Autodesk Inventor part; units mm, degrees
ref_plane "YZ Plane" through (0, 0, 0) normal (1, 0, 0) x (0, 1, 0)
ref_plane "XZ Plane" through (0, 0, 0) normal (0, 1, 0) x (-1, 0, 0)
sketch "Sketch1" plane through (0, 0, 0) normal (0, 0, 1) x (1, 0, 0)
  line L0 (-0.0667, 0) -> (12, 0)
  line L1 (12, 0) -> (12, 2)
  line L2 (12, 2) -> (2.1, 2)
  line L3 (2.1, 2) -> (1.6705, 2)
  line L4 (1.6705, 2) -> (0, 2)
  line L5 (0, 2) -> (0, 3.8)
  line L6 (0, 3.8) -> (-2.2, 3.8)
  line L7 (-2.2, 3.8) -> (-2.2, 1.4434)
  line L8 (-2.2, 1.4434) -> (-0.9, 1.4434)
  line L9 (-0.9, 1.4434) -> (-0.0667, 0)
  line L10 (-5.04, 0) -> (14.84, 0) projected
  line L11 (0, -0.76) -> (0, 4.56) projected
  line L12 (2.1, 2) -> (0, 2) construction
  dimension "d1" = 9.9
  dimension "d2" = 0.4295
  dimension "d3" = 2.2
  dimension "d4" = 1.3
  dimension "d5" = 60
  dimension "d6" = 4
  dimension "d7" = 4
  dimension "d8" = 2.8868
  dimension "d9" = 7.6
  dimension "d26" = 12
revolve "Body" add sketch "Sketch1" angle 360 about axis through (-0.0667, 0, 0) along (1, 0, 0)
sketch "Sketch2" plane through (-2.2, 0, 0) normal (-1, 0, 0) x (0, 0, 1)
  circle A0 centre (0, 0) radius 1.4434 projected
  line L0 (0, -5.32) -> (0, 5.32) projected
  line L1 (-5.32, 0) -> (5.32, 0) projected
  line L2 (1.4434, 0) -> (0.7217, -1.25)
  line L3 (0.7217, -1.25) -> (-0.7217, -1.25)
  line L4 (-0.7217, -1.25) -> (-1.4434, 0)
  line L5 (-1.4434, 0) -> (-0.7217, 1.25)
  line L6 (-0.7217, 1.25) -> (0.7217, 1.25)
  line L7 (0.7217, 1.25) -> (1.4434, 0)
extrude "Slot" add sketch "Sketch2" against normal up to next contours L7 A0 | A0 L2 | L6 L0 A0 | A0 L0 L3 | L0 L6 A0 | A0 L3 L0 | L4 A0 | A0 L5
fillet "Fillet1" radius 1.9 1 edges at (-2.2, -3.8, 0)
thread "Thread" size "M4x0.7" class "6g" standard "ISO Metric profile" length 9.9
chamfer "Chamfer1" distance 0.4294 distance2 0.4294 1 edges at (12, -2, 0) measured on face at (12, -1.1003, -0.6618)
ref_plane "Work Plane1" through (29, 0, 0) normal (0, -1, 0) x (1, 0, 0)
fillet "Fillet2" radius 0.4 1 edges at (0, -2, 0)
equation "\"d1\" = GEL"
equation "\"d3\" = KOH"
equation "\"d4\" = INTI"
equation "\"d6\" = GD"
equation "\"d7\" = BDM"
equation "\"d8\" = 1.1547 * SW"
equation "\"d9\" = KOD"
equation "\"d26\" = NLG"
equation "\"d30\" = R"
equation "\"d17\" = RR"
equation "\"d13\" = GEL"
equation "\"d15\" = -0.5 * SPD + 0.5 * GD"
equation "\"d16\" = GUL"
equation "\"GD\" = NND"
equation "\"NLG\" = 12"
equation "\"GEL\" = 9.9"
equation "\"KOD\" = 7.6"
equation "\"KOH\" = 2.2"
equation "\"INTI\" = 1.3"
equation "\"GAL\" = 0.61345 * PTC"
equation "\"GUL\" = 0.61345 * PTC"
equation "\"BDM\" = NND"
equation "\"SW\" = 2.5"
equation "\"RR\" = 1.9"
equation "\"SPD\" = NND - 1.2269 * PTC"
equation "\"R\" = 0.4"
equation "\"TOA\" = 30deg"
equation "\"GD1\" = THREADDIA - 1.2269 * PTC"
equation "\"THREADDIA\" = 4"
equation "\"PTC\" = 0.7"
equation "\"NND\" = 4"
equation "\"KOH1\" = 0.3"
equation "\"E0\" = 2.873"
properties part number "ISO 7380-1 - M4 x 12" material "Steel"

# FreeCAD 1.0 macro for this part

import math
import FreeCAD as App
import Part
import Sketcher

V = App.Vector
Q = App.Units.Quantity


def edges_at(feature, points):
    """Names of the edges that pass closest to the given points."""
    edges = feature.Shape.Edges
    near = lambda p: min(range(len(edges)), key=lambda i: edges[i].distToShape(Part.Vertex(*p))[0])
    return sorted({f"Edge{near(p) + 1}" for p in points})

doc = App.newDocument("Part")
body = doc.addObject("PartDesign::Body", "Body")

sketch1 = doc.addObject("Sketcher::SketchObject", "Sketch")
body.addObject(sketch1)
sketch1.AttachmentSupport = (doc.XY_Plane, [""])
sketch1.MapMode = "FlatFace"
sketch1.addGeometry(Part.LineSegment(V(-0.9, 1.4, 0), V(-0.1, 0, 0)), False)
sketch1.addGeometry(Part.LineSegment(V(-0.1, 0, 0), V(12, 0, 0)), False)
sketch1.addGeometry(Part.LineSegment(V(12, 0, 0), V(12, 2, 0)), False)
sketch1.addGeometry(Part.LineSegment(V(12, 2, 0), V(0, 2, 0)), False)
sketch1.addGeometry(Part.LineSegment(V(0, 2, 0), V(0, 3.8, 0)), False)
sketch1.addGeometry(Part.LineSegment(V(0, 3.8, 0), V(-2.2, 3.8, 0)), False)
sketch1.addGeometry(Part.LineSegment(V(-2.2, 3.8, 0), V(-2.2, 1.4, 0)), False)
sketch1.addGeometry(Part.LineSegment(V(-2.2, 1.4, 0), V(-0.9, 1.4, 0)), False)
sketch1.addConstraint(Sketcher.Constraint("Coincident", 0, 2, 1, 1))
sketch1.addConstraint(Sketcher.Constraint("Coincident", 1, 2, 2, 1))
sketch1.addConstraint(Sketcher.Constraint("Coincident", 2, 2, 3, 1))
sketch1.addConstraint(Sketcher.Constraint("Coincident", 3, 2, 4, 1))
sketch1.addConstraint(Sketcher.Constraint("Coincident", 4, 2, 5, 1))
sketch1.addConstraint(Sketcher.Constraint("Coincident", 5, 2, 6, 1))
sketch1.addConstraint(Sketcher.Constraint("Coincident", 6, 2, 7, 1))
sketch1.addConstraint(Sketcher.Constraint("Coincident", 7, 2, 0, 1))
sketch1.addConstraint(Sketcher.Constraint("Horizontal", 1))
sketch1.addConstraint(Sketcher.Constraint("Vertical", 2))
sketch1.addConstraint(Sketcher.Constraint("Horizontal", 3))
sketch1.addConstraint(Sketcher.Constraint("Vertical", 4))
sketch1.addConstraint(Sketcher.Constraint("Horizontal", 5))
sketch1.addConstraint(Sketcher.Constraint("Vertical", 6))
sketch1.addConstraint(Sketcher.Constraint("Horizontal", 7))
sketch1.addConstraint(Sketcher.Constraint("PointOnObject", 0, 2, -1))
sketch1.addConstraint(Sketcher.Constraint("PointOnObject", 3, 2, -2))
sketch1.addConstraint(Sketcher.Constraint("DistanceX", 3, 2, 3, 1, 12.0))
sketch1.addConstraint(Sketcher.Constraint("DistanceX", 5, 2, 5, 1, 2.2))
sketch1.addConstraint(Sketcher.Constraint("DistanceX", 7, 1, 7, 2, 1.3))
sketch1.addConstraint(Sketcher.Constraint("DistanceY", 2, 1, 2, 2, 2.0))
sketch1.addConstraint(Sketcher.Constraint("DistanceY", 4, 1, 4, 2, 1.8))
sketch1.addConstraint(Sketcher.Constraint("DistanceX", 1, 1, 1, 2, 12.0667))
sketch1.addConstraint(Sketcher.Constraint("DistanceY", 6, 2, 6, 1, 2.3566))
revolution = doc.addObject("PartDesign::Revolution", "Revolution")
body.addObject(revolution)
revolution.Profile = sketch1
revolution.ReferenceAxis = (sketch1, ["H_Axis"])
revolution.Angle = 360

sketch2 = doc.addObject("Sketcher::SketchObject", "Sketch001")
body.addObject(sketch2)
sketch2.AttachmentSupport = (doc.YZ_Plane, [""])
sketch2.MapMode = "FlatFace"
sketch2.AttachmentOffset = App.Placement(V(0, 0, -2.2), App.Rotation())
sketch2.addGeometry(Part.LineSegment(V(1.2, 0.7, 0), V(0, 1.4, 0)), False)
sketch2.addGeometry(Part.ArcOfCircle(Part.Circle(V(0, 0, 0), V(0, 0, 1), 1.4), math.radians(30), math.radians(90)), False)
sketch2.addGeometry(Part.ArcOfCircle(Part.Circle(V(0, 0, 0), V(0, 0, 1), 1.4), math.radians(90), math.radians(150)), False)
sketch2.addGeometry(Part.LineSegment(V(0, 1.4, 0), V(-1.2, 0.7, 0)), False)
sketch2.addGeometry(Part.ArcOfCircle(Part.Circle(V(0, 0, 0), V(0, 0, 1), 1.4), math.radians(-30), math.radians(30)), False)
sketch2.addGeometry(Part.LineSegment(V(1.2, 0.7, 0), V(1.2, -0.7, 0)), False)
sketch2.addGeometry(Part.LineSegment(V(-1.2, 0.7, 0), V(-1.2, -0.7, 0)), False)
sketch2.addGeometry(Part.ArcOfCircle(Part.Circle(V(0, 0, 0), V(0, 0, 1), 1.4), math.radians(150), math.radians(210)), False)
sketch2.addGeometry(Part.LineSegment(V(-1.2, -0.7, 0), V(0, -1.4, 0)), False)
sketch2.addGeometry(Part.ArcOfCircle(Part.Circle(V(0, 0, 0), V(0, 0, 1), 1.4), math.radians(-150), math.radians(-90)), False)
sketch2.addGeometry(Part.ArcOfCircle(Part.Circle(V(0, 0, 0), V(0, 0, 1), 1.4), math.radians(-90), math.radians(-30)), False)
sketch2.addGeometry(Part.LineSegment(V(0, -1.4, 0), V(1.2, -0.7, 0)), False)
sketch2.addConstraint(Sketcher.Constraint("Coincident", 0, 1, 1, 1))
sketch2.addConstraint(Sketcher.Constraint("Coincident", 1, 2, 0, 2))
sketch2.addConstraint(Sketcher.Constraint("Coincident", 2, 1, 3, 1))
sketch2.addConstraint(Sketcher.Constraint("Coincident", 3, 2, 2, 2))
sketch2.addConstraint(Sketcher.Constraint("Coincident", 4, 1, 5, 2))
sketch2.addConstraint(Sketcher.Constraint("Coincident", 5, 1, 4, 2))
sketch2.addConstraint(Sketcher.Constraint("Coincident", 6, 1, 7, 1))
sketch2.addConstraint(Sketcher.Constraint("Coincident", 7, 2, 6, 2))
sketch2.addConstraint(Sketcher.Constraint("Coincident", 8, 1, 9, 1))
sketch2.addConstraint(Sketcher.Constraint("Coincident", 9, 2, 8, 2))
sketch2.addConstraint(Sketcher.Constraint("Coincident", 10, 1, 11, 1))
sketch2.addConstraint(Sketcher.Constraint("Coincident", 11, 2, 10, 2))
sketch2.addConstraint(Sketcher.Constraint("Vertical", 5))
sketch2.addConstraint(Sketcher.Constraint("Vertical", 6))
sketch2.addConstraint(Sketcher.Constraint("Coincident", 1, 3, -1, 1))
sketch2.addConstraint(Sketcher.Constraint("Coincident", 2, 3, -1, 1))
sketch2.addConstraint(Sketcher.Constraint("Coincident", 4, 3, -1, 1))
sketch2.addConstraint(Sketcher.Constraint("Coincident", 7, 3, -1, 1))
sketch2.addConstraint(Sketcher.Constraint("Coincident", 9, 3, -1, 1))
sketch2.addConstraint(Sketcher.Constraint("Coincident", 10, 3, -1, 1))
sketch2.addConstraint(Sketcher.Constraint("Coincident", 2, 1, 1, 2))
sketch2.addConstraint(Sketcher.Constraint("Coincident", 5, 1, 0, 1))
sketch2.addConstraint(Sketcher.Constraint("Coincident", 6, 1, 3, 2))
sketch2.addConstraint(Sketcher.Constraint("Coincident", 8, 1, 7, 2))
sketch2.addConstraint(Sketcher.Constraint("Coincident", 10, 1, 9, 2))
sketch2.addConstraint(Sketcher.Constraint("PointOnObject", 1, 2, -2))
sketch2.addConstraint(Sketcher.Constraint("PointOnObject", 9, 2, -2))
sketch2.addConstraint(Sketcher.Constraint("Parallel", 0, 8))
sketch2.addConstraint(Sketcher.Constraint("Parallel", 3, 11))
sketch2.addConstraint(Sketcher.Constraint("Angle", 0, Q("149.9996 deg")))
sketch2.addConstraint(Sketcher.Constraint("Radius", 1, 1.4434))
pad1 = doc.addObject("PartDesign::Pad", "Pad")
body.addObject(pad1)
pad1.Profile = sketch2
pad1.Type = "UpToFirst"
doc.recompute()

fillet = doc.addObject("PartDesign::Fillet", "Fillet")
body.addObject(fillet)
fillet.Base = (pad1, edges_at(pad1, [(-2.2, -3.8, 0)]))
fillet.Radius = 1.9
doc.recompute()

chamfer = doc.addObject("PartDesign::Chamfer", "Chamfer")
body.addObject(chamfer)
chamfer.Base = (fillet, edges_at(fillet, [(12, -2, 0)]))
chamfer.ChamferType = "Two distances"
chamfer.Size = 0.4294
chamfer.Size2 = 0.4294
doc.recompute()

fillet2 = doc.addObject("PartDesign::Fillet", "Fillet001")
body.addObject(fillet2)
fillet2.Base = (chamfer, edges_at(chamfer, [(0, -2, 0)]))
fillet2.Radius = 0.4

doc.recompute()
